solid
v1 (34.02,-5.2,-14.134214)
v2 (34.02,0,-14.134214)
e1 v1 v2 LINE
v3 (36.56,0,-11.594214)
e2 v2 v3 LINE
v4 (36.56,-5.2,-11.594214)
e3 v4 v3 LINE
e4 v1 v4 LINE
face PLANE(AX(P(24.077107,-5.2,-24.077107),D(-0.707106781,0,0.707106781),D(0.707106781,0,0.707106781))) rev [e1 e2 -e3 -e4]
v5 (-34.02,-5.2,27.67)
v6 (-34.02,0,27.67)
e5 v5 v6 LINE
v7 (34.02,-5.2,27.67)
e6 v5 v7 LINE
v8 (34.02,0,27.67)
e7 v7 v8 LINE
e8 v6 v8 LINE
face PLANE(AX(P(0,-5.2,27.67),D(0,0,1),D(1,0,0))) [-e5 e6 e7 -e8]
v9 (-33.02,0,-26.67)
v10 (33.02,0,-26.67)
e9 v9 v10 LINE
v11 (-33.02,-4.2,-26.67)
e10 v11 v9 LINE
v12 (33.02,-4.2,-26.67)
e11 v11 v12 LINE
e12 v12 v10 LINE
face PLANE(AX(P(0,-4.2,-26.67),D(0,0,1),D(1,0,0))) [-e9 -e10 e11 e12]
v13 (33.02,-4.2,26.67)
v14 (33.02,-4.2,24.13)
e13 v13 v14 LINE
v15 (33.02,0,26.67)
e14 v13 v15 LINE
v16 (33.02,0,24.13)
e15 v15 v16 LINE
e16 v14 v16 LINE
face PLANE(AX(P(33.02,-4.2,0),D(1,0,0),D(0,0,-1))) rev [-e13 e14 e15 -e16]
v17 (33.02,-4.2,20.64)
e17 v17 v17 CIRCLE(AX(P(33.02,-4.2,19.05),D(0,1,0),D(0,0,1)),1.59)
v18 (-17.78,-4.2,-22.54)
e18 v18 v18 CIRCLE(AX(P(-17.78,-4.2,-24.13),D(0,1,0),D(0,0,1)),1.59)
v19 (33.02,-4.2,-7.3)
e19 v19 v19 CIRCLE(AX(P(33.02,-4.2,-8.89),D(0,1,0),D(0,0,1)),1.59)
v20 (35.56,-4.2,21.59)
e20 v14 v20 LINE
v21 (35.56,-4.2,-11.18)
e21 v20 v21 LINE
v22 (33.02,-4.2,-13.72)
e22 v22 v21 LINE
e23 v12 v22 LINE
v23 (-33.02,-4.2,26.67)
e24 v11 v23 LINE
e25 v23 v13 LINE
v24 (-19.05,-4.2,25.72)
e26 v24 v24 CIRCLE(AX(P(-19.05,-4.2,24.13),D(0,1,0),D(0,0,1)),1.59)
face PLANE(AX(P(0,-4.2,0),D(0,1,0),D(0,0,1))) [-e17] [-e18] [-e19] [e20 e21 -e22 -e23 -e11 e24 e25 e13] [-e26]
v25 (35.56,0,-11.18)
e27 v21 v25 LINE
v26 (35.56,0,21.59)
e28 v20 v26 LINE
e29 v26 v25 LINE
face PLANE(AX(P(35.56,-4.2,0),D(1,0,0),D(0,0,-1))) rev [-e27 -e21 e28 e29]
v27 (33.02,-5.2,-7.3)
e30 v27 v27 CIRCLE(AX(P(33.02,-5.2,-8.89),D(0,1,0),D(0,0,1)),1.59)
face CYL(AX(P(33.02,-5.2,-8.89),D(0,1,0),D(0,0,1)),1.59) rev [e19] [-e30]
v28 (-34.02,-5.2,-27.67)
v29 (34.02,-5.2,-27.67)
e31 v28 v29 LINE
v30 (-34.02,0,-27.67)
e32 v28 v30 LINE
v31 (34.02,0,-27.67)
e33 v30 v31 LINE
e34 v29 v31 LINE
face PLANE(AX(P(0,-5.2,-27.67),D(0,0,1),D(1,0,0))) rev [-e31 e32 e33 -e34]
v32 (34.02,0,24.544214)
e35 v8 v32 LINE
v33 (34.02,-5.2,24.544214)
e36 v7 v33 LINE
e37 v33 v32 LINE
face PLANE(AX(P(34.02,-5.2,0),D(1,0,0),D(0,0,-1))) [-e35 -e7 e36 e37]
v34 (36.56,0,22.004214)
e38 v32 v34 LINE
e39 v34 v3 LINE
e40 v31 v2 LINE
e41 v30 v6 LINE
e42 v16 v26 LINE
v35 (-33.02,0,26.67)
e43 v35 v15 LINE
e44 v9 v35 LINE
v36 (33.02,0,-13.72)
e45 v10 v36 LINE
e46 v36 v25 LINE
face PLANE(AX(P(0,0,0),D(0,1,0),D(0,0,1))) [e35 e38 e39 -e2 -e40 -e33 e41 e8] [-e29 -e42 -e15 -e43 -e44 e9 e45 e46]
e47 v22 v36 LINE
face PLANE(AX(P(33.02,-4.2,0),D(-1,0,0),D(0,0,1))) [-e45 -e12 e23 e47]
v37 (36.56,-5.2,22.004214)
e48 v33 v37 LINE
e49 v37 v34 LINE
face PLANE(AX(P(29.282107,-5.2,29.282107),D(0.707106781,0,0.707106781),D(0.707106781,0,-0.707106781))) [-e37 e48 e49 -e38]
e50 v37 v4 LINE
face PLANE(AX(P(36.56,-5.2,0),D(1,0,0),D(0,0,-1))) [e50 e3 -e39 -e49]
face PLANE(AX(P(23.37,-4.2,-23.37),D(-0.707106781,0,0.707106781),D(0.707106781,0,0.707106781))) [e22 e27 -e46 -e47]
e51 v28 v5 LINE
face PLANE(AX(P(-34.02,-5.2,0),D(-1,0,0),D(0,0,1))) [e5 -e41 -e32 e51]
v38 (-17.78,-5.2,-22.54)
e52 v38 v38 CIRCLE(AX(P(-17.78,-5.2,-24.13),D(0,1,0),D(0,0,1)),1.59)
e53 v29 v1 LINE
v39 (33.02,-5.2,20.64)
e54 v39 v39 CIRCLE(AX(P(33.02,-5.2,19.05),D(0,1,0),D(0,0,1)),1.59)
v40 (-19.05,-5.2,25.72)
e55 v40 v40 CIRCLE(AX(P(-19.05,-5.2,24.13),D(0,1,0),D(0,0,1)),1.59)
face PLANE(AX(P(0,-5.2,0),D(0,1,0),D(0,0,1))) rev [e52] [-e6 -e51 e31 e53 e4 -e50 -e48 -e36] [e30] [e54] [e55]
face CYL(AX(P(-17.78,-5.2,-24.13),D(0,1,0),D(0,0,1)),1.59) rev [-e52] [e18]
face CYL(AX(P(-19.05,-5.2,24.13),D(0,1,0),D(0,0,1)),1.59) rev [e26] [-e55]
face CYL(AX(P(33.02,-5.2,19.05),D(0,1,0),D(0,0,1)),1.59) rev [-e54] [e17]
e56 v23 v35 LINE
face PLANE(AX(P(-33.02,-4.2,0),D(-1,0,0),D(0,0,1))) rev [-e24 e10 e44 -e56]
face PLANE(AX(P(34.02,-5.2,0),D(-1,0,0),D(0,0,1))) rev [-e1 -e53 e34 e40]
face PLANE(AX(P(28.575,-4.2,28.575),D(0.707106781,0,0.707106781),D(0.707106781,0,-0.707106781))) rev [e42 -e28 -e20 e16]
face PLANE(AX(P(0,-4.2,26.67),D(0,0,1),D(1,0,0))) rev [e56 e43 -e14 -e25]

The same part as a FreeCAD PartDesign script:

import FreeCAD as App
import Part
import Sketcher
from FreeCAD import Vector
Q = App.Units.Quantity

doc = App.newDocument("Part")
body = doc.addObject("PartDesign::Body", "Body")

# Sketch on XZ plane
sketch1 = doc.addObject("Sketcher::SketchObject", "Sketch")
body.addObject(sketch1)
sketch1.AttachmentSupport = (doc.XZ_Plane, [""])
sketch1.MapMode = "FlatFace"
sketch1.addGeometry([
    Part.LineSegment(Vector(36.6, -11.6, 0), Vector(34, -14.1, 0)),  # 0
    Part.LineSegment(Vector(34, -14.1, 0), Vector(34, -27.7, 0)),  # 1
    Part.LineSegment(Vector(34, -27.7, 0), Vector(-34, -27.7, 0)),  # 2
    Part.LineSegment(Vector(-34, -27.7, 0), Vector(-34, 27.7, 0)),  # 3
    Part.LineSegment(Vector(-34, 27.7, 0), Vector(34, 27.7, 0)),  # 4
    Part.LineSegment(Vector(34, 27.7, 0), Vector(34, 24.5, 0)),  # 5
    Part.LineSegment(Vector(34, 24.5, 0), Vector(36.6, 22, 0)),  # 6
    Part.LineSegment(Vector(36.6, 22, 0), Vector(36.6, -11.6, 0)),  # 7
    Part.Circle(Vector(33, 19.1, 0), Vector(0, 0, 1), 1.6),  # 8
    Part.Circle(Vector(-19.1, 24.1, 0), Vector(0, 0, 1), 1.6),  # 9
    Part.Circle(Vector(33, -8.9, 0), Vector(0, 0, 1), 1.6),  # 10
    Part.Circle(Vector(-17.8, -24.1, 0), Vector(0, 0, 1), 1.6),  # 11
], False)
sketch1.addConstraint([
    Sketcher.Constraint("Coincident", 0, 2, 1, 1),
    Sketcher.Constraint("Coincident", 1, 2, 2, 1),
    Sketcher.Constraint("Coincident", 2, 2, 3, 1),
    Sketcher.Constraint("Coincident", 3, 2, 4, 1),
    Sketcher.Constraint("Coincident", 4, 2, 5, 1),
    Sketcher.Constraint("Coincident", 5, 2, 6, 1),
    Sketcher.Constraint("Coincident", 6, 2, 7, 1),
    Sketcher.Constraint("Coincident", 7, 2, 0, 1),
    Sketcher.Constraint("Vertical", 1),
    Sketcher.Constraint("Horizontal", 2),
    Sketcher.Constraint("Vertical", 3),
    Sketcher.Constraint("Horizontal", 4),
    Sketcher.Constraint("Vertical", 5),
    Sketcher.Constraint("Vertical", 7),
    Sketcher.Constraint("Equal", 8, 9),
    Sketcher.Constraint("Equal", 9, 10),
    Sketcher.Constraint("Equal", 10, 11),
    Sketcher.Constraint("Symmetric", 1, 2, 3, 2, -1, 1),
    Sketcher.Constraint("Perpendicular", 0, 6),
    Sketcher.Constraint("Vertical", 8, 3, 10, 3),
    Sketcher.Constraint("Vertical", 1, 2, 4, 2),
    Sketcher.Constraint("Equal", 0, 6),
    Sketcher.Constraint("DistanceX", 11, 3, 10, 3, Q("2 in")),
    Sketcher.Constraint("DistanceX", -1, 1, 8, 3, Q("1.3 in")),
    Sketcher.Constraint("DistanceY", 8, 3, 9, 3, Q("0.2 in")),
    Sketcher.Constraint("DistanceY", 10, 3, 8, 3, Q("1.1 in")),
    Sketcher.Constraint("DistanceY", 11, 3, 9, 3, Q("1.9 in")),
    Sketcher.Constraint("DistanceX", 5, 2, 6, 2, Q("0.1 in")),
    Sketcher.Constraint("Diameter", 8, 3.18),
    Sketcher.Constraint("DistanceY", -1, 1, 8, 3, Q("0.75 in")),
    Sketcher.Constraint("DistanceX", 9, 3, -1, 1, Q("0.75 in")),
    Sketcher.Constraint("DistanceX", 2, 2, 2, 1, 68.04),
    Sketcher.Constraint("DistanceY", 3, 1, 3, 2, 55.34),
    Sketcher.Constraint("DistanceY", 1, 2, 1, 1, 13.535786),
    Sketcher.Constraint("DistanceY", 5, 2, 5, 1, 3.125786),
])
pad1 = doc.addObject("PartDesign::Pad", "Pad")
body.addObject(pad1)
pad1.Profile = sketch1
pad1.Length = 5.2

# Sketch on XZ plane
sketch2 = doc.addObject("Sketcher::SketchObject", "Sketch001")
body.addObject(sketch2)
sketch2.AttachmentSupport = (doc.XZ_Plane, [""])
sketch2.MapMode = "FlatFace"
sketch2.addGeometry([
    Part.LineSegment(Vector(35.6, -11.2, 0), Vector(33, -13.7, 0)),  # 0
    Part.LineSegment(Vector(33, -13.7, 0), Vector(33, -26.7, 0)),  # 1
    Part.LineSegment(Vector(33, -26.7, 0), Vector(-33, -26.7, 0)),  # 2
    Part.LineSegment(Vector(-33, -26.7, 0), Vector(-33, 26.7, 0)),  # 3
    Part.LineSegment(Vector(-33, 26.7, 0), Vector(33, 26.7, 0)),  # 4
    Part.LineSegment(Vector(33, 26.7, 0), Vector(33, 24.1, 0)),  # 5
    Part.LineSegment(Vector(33, 24.1, 0), Vector(35.6, 21.6, 0)),  # 6
    Part.LineSegment(Vector(35.6, 21.6, 0), Vector(35.6, -11.2, 0)),  # 7
    Part.Circle(Vector(33, 19.1, 0), Vector(0, 0, 1), 1.6),  # 8
    Part.Circle(Vector(-19.1, 24.1, 0), Vector(0, 0, 1), 1.6),  # 9
    Part.Circle(Vector(33, -8.9, 0), Vector(0, 0, 1), 1.6),  # 10
    Part.Circle(Vector(-17.8, -24.1, 0), Vector(0, 0, 1), 1.6),  # 11
], False)
sketch2.addConstraint([
    Sketcher.Constraint("Coincident", 0, 2, 1, 1),
    Sketcher.Constraint("Coincident", 1, 2, 2, 1),
    Sketcher.Constraint("Coincident", 2, 2, 3, 1),
    Sketcher.Constraint("Coincident", 3, 2, 4, 1),
    Sketcher.Constraint("Coincident", 4, 2, 5, 1),
    Sketcher.Constraint("Coincident", 5, 2, 6, 1),
    Sketcher.Constraint("Coincident", 6, 2, 7, 1),
    Sketcher.Constraint("Coincident", 7, 2, 0, 1),
    Sketcher.Constraint("Vertical", 1),
    Sketcher.Constraint("Horizontal", 2),
    Sketcher.Constraint("Vertical", 3),
    Sketcher.Constraint("Horizontal", 4),
    Sketcher.Constraint("Vertical", 5),
    Sketcher.Constraint("Vertical", 7),
    Sketcher.Constraint("Equal", 8, 9),
    Sketcher.Constraint("Equal", 9, 10),
    Sketcher.Constraint("Equal", 10, 11),
    Sketcher.Constraint("Symmetric", 1, 2, 3, 2, -1, 1),
    Sketcher.Constraint("Perpendicular", 0, 6),
    Sketcher.Constraint("Horizontal", 9, 3, 5, 2),
    Sketcher.Constraint("Vertical", 8, 3, 10, 3),
    Sketcher.Constraint("Vertical", 10, 3, 0, 2),
    Sketcher.Constraint("Vertical", 1, 2, 4, 2),
    Sketcher.Constraint("Equal", 0, 6),
    Sketcher.Constraint("DistanceX", 2, 2, 2, 1, Q("2.6 in")),
    Sketcher.Constraint("DistanceY", 3, 1, 3, 2, Q("2.1 in")),
    Sketcher.Constraint("DistanceY", 5, 2, 5, 1, Q("0.1 in")),
    Sketcher.Constraint("DistanceX", 11, 3, 10, 3, Q("2 in")),
    Sketcher.Constraint("DistanceY", 11, 3, 3, 2, Q("2 in")),
    Sketcher.Constraint("DistanceX", -1, 1, 6, 2, Q("1.4 in")),
    Sketcher.Constraint("DistanceY", 8, 3, 9, 3, Q("0.2 in")),
    Sketcher.Constraint("DistanceY", 10, 3, 8, 3, Q("1.1 in")),
    Sketcher.Constraint("Diameter", 8, 3.18),
    Sketcher.Constraint("DistanceX", 9, 3, -1, 1, Q("0.75 in")),
    Sketcher.Constraint("DistanceY", 1, 2, 1, 1, 12.95),
])
pocket1 = doc.addObject("PartDesign::Pocket", "Pocket")
body.addObject(pocket1)
pocket1.Profile = sketch2
pocket1.Length = 4.2
pocket1.Reversed = True

doc.recompute()
